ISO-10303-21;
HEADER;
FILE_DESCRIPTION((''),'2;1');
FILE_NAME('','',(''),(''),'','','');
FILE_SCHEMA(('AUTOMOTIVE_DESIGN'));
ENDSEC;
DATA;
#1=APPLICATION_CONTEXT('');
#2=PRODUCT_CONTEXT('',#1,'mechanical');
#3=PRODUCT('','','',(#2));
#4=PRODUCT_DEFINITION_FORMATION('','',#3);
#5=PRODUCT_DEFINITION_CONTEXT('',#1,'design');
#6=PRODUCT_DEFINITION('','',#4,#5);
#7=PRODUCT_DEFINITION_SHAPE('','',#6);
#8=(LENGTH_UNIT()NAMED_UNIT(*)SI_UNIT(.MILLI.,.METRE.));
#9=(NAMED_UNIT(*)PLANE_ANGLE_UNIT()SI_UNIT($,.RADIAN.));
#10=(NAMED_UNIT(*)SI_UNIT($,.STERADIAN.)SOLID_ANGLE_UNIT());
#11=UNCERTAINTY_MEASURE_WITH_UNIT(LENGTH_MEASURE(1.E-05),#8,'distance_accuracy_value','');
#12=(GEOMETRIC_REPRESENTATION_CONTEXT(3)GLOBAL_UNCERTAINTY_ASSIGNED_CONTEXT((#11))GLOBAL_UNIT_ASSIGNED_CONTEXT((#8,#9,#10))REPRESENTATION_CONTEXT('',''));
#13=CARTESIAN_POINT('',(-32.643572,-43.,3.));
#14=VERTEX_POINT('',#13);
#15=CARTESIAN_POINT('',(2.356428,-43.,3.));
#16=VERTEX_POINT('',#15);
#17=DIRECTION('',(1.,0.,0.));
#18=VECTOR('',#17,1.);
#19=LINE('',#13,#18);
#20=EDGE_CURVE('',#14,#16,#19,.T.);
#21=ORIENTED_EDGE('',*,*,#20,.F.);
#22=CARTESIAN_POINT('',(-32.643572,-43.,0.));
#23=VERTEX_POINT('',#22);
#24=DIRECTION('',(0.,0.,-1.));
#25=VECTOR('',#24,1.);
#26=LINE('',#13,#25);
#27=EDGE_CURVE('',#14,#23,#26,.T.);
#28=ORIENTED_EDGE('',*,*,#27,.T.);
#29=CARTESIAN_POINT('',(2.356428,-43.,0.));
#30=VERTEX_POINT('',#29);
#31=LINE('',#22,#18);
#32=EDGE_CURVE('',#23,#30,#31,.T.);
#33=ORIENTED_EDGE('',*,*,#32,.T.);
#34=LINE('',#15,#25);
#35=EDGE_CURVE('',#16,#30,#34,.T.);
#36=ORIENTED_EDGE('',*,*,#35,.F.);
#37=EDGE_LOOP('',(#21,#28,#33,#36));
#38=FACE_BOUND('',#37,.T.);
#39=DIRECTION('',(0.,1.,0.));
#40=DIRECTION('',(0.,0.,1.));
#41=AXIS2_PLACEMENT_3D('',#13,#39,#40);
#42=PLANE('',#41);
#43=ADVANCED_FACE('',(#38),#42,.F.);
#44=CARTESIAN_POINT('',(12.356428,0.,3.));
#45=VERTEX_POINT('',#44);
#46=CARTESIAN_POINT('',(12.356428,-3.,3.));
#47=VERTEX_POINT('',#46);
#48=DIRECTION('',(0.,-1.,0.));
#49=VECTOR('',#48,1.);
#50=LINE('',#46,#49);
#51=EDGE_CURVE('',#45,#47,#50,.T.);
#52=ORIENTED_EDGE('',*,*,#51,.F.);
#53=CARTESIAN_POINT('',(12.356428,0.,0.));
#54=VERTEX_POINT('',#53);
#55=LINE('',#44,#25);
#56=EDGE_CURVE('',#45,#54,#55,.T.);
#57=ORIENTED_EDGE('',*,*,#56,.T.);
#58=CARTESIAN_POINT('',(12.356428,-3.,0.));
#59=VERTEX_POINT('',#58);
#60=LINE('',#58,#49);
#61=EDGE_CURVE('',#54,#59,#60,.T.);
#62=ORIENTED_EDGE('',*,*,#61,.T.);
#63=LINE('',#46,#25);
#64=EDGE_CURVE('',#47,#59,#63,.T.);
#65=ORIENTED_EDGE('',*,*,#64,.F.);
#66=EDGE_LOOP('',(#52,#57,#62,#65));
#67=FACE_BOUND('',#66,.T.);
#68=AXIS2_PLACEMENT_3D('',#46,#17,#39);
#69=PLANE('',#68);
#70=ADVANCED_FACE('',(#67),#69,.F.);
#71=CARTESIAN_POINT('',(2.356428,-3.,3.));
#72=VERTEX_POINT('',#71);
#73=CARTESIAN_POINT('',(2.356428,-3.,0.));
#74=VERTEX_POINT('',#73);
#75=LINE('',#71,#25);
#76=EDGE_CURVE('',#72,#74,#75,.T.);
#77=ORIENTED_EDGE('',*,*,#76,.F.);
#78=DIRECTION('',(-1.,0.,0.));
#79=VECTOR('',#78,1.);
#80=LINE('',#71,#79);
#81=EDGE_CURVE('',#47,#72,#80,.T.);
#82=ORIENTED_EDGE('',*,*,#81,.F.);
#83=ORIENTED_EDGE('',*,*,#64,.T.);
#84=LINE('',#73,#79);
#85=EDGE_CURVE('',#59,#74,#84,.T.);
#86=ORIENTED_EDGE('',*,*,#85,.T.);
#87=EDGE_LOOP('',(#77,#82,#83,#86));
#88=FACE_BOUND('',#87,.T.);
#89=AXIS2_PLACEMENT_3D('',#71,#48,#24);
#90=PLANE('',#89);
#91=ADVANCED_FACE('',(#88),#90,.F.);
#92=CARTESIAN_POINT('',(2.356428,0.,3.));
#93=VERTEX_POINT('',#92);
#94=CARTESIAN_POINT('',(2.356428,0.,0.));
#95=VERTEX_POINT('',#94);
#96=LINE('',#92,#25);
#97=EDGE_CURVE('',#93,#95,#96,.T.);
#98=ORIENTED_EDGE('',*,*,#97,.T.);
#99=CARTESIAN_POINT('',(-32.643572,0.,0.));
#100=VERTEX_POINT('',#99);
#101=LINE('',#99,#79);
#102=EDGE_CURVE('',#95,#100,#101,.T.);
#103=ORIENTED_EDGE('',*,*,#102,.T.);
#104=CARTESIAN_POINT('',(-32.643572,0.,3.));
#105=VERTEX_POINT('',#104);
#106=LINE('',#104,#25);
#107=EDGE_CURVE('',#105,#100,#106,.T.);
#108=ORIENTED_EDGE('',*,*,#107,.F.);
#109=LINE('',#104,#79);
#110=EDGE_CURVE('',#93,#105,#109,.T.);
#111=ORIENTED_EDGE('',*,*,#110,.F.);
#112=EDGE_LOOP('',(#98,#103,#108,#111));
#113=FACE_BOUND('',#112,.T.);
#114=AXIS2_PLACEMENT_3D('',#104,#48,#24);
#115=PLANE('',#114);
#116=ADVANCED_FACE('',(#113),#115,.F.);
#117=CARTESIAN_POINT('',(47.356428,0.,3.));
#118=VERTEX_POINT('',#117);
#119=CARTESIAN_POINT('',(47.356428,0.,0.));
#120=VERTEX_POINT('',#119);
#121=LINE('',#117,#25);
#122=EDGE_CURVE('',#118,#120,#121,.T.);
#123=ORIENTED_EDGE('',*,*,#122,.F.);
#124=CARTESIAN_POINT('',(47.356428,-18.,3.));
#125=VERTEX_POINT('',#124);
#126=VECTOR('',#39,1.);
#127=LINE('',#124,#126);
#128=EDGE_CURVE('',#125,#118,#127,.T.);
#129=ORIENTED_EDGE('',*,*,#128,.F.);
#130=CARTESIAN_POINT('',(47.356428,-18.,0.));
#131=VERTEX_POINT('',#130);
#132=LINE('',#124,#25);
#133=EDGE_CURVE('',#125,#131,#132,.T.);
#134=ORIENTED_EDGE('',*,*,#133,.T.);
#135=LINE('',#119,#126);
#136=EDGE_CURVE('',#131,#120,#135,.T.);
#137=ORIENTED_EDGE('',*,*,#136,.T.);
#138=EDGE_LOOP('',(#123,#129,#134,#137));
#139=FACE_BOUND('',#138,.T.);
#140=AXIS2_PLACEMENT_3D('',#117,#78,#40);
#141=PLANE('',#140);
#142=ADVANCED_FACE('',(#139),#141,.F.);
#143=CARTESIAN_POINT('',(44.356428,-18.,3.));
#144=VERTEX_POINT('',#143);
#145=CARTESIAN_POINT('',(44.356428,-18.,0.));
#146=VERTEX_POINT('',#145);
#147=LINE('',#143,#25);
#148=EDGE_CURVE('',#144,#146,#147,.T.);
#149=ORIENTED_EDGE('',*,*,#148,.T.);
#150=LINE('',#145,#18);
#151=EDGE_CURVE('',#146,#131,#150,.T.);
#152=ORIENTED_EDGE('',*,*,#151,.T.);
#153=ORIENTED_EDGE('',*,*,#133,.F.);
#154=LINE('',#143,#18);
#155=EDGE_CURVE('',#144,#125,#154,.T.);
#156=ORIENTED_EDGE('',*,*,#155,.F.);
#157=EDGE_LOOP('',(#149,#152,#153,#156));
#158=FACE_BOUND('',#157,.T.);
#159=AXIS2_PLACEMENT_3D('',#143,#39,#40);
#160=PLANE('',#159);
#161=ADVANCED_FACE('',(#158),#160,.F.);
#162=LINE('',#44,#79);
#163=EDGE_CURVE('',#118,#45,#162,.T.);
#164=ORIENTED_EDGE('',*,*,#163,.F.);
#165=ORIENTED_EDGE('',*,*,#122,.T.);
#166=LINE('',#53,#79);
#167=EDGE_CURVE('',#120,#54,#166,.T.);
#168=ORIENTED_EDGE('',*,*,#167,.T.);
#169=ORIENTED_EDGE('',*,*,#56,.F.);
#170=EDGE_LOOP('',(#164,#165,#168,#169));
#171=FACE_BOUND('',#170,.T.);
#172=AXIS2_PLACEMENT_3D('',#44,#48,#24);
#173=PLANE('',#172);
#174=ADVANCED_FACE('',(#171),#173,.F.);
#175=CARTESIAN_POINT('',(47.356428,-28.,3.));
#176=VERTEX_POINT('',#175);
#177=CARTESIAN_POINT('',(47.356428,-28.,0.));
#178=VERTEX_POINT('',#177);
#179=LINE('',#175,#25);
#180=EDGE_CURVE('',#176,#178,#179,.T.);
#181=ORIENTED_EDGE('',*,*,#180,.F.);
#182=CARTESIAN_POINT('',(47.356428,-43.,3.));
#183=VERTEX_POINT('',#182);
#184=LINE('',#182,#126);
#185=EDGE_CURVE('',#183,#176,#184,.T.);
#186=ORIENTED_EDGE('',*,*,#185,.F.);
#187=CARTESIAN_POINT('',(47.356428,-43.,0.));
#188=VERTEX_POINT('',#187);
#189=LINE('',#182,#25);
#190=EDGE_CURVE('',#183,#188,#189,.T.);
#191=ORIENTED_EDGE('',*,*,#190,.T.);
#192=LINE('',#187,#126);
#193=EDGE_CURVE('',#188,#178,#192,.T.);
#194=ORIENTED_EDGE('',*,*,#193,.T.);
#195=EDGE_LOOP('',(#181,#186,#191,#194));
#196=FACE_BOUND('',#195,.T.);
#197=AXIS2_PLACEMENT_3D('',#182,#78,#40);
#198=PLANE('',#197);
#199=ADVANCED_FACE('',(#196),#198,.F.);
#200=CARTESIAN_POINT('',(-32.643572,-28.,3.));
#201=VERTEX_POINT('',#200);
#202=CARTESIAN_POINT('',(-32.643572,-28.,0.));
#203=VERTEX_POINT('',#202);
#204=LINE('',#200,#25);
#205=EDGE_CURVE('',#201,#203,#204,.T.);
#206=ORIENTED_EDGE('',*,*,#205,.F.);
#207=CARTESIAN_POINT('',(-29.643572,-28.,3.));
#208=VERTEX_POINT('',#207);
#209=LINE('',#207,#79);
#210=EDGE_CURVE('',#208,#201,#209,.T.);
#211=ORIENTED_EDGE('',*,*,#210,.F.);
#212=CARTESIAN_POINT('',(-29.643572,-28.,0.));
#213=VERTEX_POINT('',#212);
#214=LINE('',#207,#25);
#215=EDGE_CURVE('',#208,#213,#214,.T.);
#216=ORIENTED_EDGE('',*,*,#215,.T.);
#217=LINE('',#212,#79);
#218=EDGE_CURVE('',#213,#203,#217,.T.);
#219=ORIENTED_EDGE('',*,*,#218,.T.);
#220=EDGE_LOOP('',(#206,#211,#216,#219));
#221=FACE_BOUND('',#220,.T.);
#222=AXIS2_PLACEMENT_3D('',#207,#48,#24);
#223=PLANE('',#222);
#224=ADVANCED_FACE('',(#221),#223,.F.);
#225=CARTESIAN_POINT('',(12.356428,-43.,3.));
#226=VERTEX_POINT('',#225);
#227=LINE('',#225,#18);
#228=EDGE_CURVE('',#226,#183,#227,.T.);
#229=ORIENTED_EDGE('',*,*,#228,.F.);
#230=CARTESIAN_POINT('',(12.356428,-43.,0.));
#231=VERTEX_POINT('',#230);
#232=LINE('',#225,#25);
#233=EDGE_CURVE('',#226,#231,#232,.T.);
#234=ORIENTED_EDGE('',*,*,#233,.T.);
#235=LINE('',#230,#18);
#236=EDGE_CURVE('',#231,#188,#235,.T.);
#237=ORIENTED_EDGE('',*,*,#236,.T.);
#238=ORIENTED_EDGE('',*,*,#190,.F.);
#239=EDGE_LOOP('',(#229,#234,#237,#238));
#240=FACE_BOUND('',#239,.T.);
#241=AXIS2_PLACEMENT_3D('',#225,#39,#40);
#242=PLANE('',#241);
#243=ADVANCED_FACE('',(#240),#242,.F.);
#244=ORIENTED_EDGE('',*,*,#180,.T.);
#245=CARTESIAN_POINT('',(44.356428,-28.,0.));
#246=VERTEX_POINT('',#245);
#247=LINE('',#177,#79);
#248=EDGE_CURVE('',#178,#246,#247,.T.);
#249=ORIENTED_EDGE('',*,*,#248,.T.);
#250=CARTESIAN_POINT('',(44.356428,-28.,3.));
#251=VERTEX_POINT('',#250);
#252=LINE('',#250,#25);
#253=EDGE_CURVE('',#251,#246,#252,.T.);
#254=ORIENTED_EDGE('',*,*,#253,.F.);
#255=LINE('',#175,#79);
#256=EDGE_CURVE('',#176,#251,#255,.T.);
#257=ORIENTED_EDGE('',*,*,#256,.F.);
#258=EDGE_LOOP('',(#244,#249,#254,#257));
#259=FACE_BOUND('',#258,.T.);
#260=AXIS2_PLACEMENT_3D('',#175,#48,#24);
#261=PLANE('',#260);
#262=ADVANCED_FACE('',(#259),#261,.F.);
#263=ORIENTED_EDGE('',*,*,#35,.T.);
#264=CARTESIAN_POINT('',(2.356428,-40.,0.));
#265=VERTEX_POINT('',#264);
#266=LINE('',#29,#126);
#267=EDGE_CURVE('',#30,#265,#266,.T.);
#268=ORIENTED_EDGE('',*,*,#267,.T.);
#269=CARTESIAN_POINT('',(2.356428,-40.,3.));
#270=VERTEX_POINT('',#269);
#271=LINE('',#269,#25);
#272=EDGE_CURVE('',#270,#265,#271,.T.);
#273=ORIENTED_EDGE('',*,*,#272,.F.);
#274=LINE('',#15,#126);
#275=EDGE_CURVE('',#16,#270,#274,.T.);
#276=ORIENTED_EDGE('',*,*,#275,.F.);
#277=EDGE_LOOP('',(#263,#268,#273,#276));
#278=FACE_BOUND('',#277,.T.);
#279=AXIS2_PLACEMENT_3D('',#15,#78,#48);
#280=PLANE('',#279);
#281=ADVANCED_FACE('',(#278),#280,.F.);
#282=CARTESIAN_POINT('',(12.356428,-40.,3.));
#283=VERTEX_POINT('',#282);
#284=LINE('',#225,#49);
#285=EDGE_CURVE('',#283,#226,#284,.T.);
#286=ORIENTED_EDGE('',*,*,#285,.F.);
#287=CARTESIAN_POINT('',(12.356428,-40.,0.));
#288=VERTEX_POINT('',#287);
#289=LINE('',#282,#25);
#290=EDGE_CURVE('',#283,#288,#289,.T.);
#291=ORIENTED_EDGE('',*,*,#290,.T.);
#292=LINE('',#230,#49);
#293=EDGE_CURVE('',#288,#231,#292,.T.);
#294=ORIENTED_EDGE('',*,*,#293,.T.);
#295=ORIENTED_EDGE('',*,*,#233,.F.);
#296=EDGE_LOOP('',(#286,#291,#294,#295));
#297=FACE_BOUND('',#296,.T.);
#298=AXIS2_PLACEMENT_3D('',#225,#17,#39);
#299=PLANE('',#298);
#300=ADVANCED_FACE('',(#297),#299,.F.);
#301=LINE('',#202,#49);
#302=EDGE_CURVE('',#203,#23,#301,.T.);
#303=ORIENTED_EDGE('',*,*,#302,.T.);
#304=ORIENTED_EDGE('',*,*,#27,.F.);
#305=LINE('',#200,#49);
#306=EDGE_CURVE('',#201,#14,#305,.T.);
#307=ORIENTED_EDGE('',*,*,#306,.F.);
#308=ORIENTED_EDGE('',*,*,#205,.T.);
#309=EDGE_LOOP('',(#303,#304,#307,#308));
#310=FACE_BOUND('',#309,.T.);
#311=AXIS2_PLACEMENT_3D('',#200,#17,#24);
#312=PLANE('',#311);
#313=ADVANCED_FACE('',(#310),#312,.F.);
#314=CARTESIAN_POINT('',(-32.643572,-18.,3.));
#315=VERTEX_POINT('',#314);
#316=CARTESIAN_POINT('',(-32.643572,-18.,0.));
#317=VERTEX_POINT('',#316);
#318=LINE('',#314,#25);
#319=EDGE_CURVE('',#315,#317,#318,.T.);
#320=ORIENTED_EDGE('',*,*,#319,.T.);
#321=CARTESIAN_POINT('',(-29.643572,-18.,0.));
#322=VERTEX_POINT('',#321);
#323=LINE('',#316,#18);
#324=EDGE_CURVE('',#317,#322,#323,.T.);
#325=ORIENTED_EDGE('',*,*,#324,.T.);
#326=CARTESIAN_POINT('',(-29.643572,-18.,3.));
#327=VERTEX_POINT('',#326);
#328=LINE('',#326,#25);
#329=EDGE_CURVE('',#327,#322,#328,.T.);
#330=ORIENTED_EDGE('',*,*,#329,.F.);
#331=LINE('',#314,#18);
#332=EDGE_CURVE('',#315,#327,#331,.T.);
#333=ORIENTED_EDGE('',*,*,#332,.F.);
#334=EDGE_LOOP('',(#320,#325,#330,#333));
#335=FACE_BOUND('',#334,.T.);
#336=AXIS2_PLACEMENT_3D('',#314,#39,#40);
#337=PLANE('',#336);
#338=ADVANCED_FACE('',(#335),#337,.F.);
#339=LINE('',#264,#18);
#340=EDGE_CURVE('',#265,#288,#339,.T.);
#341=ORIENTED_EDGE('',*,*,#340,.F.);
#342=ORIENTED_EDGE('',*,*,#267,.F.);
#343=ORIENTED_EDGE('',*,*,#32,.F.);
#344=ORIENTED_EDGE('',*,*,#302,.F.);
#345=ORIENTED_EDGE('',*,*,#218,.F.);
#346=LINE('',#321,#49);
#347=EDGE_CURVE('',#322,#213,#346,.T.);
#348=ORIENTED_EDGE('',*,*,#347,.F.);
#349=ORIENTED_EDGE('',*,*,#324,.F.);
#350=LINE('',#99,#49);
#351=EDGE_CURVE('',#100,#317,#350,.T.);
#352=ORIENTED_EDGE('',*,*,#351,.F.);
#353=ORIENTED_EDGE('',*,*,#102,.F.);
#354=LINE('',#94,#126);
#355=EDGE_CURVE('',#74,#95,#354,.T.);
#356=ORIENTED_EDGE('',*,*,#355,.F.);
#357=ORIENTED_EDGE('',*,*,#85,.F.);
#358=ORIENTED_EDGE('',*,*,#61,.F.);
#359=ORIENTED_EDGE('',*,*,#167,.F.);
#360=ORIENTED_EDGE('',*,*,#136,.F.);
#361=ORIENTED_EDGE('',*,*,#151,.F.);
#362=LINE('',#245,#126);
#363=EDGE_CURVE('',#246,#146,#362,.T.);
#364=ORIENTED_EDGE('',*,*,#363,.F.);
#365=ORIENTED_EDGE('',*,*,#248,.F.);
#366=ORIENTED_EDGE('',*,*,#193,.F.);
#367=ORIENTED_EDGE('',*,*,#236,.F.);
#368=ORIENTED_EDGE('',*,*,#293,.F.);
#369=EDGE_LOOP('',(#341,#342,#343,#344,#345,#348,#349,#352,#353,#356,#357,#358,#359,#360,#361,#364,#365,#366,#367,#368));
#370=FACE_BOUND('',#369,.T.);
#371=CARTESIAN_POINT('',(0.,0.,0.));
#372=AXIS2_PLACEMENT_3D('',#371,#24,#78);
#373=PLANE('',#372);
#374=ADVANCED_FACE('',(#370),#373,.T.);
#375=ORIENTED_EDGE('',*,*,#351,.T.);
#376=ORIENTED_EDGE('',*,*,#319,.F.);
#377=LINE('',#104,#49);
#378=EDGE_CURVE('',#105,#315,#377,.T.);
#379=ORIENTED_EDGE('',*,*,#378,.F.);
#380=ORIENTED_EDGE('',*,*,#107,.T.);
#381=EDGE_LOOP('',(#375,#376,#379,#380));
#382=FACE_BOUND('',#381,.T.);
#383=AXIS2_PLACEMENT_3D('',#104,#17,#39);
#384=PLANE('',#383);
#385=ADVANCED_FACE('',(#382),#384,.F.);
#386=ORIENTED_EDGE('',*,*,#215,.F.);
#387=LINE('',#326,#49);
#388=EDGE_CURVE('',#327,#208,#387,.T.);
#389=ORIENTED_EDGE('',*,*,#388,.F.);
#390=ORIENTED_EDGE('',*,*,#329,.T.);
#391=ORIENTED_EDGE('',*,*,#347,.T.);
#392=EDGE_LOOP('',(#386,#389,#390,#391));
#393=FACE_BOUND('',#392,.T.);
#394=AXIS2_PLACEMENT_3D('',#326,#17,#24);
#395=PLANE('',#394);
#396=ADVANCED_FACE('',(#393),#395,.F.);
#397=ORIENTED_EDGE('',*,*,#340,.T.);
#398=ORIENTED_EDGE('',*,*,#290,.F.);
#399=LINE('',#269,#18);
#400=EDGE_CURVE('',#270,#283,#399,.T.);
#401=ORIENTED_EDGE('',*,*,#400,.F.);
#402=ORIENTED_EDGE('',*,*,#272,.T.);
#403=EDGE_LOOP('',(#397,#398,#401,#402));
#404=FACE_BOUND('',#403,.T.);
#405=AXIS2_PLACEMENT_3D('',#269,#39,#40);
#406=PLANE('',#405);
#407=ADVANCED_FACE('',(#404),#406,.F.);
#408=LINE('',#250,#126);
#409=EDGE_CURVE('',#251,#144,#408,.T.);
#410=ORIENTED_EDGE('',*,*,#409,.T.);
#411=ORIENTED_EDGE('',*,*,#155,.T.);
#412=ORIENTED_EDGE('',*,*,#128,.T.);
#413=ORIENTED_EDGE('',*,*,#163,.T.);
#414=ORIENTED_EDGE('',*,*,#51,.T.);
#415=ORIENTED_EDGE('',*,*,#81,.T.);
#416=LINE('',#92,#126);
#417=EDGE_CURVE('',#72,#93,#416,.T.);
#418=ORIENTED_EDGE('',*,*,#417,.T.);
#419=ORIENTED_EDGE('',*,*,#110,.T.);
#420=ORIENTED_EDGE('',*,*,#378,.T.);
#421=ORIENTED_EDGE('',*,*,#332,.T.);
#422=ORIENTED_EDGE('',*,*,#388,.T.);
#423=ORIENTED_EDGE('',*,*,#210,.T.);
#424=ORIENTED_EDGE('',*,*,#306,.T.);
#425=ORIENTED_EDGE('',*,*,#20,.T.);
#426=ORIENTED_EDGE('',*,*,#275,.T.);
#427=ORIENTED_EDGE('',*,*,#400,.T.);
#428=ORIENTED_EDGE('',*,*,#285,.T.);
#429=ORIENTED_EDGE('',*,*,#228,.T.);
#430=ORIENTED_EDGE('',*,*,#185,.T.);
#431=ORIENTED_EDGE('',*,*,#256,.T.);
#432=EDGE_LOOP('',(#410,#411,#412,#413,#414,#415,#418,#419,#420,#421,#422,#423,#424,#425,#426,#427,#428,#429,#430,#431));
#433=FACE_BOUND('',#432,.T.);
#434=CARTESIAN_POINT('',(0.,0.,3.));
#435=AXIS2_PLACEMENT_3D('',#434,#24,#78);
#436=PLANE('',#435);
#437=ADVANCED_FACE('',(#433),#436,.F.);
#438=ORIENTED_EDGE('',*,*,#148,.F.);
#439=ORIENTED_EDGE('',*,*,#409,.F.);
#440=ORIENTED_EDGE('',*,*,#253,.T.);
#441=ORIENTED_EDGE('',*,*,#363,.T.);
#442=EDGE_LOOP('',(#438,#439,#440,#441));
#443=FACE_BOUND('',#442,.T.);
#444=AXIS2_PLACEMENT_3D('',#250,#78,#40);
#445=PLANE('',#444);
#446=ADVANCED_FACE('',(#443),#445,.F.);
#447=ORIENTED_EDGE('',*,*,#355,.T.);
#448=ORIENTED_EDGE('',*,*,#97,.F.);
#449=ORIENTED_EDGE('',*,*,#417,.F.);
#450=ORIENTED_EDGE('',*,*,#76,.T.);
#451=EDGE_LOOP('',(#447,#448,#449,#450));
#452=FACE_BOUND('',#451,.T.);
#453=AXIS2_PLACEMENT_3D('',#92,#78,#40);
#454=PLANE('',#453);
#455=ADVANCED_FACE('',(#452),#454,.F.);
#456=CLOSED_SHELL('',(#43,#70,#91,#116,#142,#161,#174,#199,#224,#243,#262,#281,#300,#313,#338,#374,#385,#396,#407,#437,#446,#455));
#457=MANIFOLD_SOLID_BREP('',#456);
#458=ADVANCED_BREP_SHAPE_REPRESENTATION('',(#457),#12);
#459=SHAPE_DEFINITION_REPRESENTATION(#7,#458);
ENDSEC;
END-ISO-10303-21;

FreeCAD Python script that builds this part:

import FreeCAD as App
import Part
import Sketcher
from FreeCAD import Vector

doc = App.newDocument("Part")
body = doc.addObject("PartDesign::Body", "Body")

sketch1 = body.newObject("Sketcher::SketchObject", "Sketch")
sketch1.AttachmentSupport = (doc.getObject("XY_Plane"), [""])
sketch1.MapMode = "FlatFace"
sketch1.addGeometry([
    Part.LineSegment(Vector(-32.6, 0, 0), Vector(-32.6, -18, 0)),
    Part.LineSegment(Vector(-32.6, -18, 0), Vector(-29.6, -18, 0)),
    Part.LineSegment(Vector(-29.6, -18, 0), Vector(-29.6, -28, 0)),
    Part.LineSegment(Vector(-29.6, -28, 0), Vector(-32.6, -28, 0)),
    Part.LineSegment(Vector(-32.6, -28, 0), Vector(-32.6, -43, 0)),
    Part.LineSegment(Vector(-32.6, -43, 0), Vector(2.4, -43, 0)),
    Part.LineSegment(Vector(2.4, -43, 0), Vector(2.4, -40, 0)),
    Part.LineSegment(Vector(2.4, -40, 0), Vector(12.4, -40, 0)),
    Part.LineSegment(Vector(12.4, -40, 0), Vector(12.4, -43, 0)),
    Part.LineSegment(Vector(12.4, -43, 0), Vector(47.4, -43, 0)),
    Part.LineSegment(Vector(47.4, -43, 0), Vector(47.4, -28, 0)),
    Part.LineSegment(Vector(47.4, -28, 0), Vector(44.4, -28, 0)),
    Part.LineSegment(Vector(44.4, -28, 0), Vector(44.4, -18, 0)),
    Part.LineSegment(Vector(44.4, -18, 0), Vector(47.4, -18, 0)),
    Part.LineSegment(Vector(47.4, -18, 0), Vector(47.4, 0, 0)),
    Part.LineSegment(Vector(47.4, 0, 0), Vector(12.4, 0, 0)),
    Part.LineSegment(Vector(12.4, 0, 0), Vector(12.4, -3, 0)),
    Part.LineSegment(Vector(12.4, -3, 0), Vector(2.4, -3, 0)),
    Part.LineSegment(Vector(2.4, -3, 0), Vector(2.4, 0, 0)),
    Part.LineSegment(Vector(2.4, 0, 0), Vector(-32.6, 0, 0)),
], False)
sketch1.addConstraint([
    Sketcher.Constraint("Coincident", 0, 2, 1, 1),
    Sketcher.Constraint("Coincident", 1, 2, 2, 1),
    Sketcher.Constraint("Coincident", 2, 2, 3, 1),
    Sketcher.Constraint("Coincident", 3, 2, 4, 1),
    Sketcher.Constraint("Coincident", 4, 2, 5, 1),
    Sketcher.Constraint("Coincident", 5, 2, 6, 1),
    Sketcher.Constraint("Coincident", 6, 2, 7, 1),
    Sketcher.Constraint("Coincident", 7, 2, 8, 1),
    Sketcher.Constraint("Coincident", 8, 2, 9, 1),
    Sketcher.Constraint("Coincident", 9, 2, 10, 1),
    Sketcher.Constraint("Coincident", 10, 2, 11, 1),
    Sketcher.Constraint("Coincident", 11, 2, 12, 1),
    Sketcher.Constraint("Coincident", 12, 2, 13, 1),
    Sketcher.Constraint("Coincident", 13, 2, 14, 1),
    Sketcher.Constraint("Coincident", 14, 2, 15, 1),
    Sketcher.Constraint("Coincident", 15, 2, 16, 1),
    Sketcher.Constraint("Coincident", 16, 2, 17, 1),
    Sketcher.Constraint("Coincident", 17, 2, 18, 1),
    Sketcher.Constraint("Coincident", 18, 2, 19, 1),
    Sketcher.Constraint("Coincident", 19, 2, 0, 1),
    Sketcher.Constraint("Vertical", 0),
    Sketcher.Constraint("Horizontal", 1),
    Sketcher.Constraint("Vertical", 2),
    Sketcher.Constraint("Horizontal", 3),
    Sketcher.Constraint("Vertical", 4),
    Sketcher.Constraint("Horizontal", 5),
    Sketcher.Constraint("Vertical", 6),
    Sketcher.Constraint("Horizontal", 7),
    Sketcher.Constraint("Vertical", 8),
    Sketcher.Constraint("Horizontal", 9),
    Sketcher.Constraint("Vertical", 10),
    Sketcher.Constraint("Horizontal", 11),
    Sketcher.Constraint("Vertical", 12),
    Sketcher.Constraint("Horizontal", 13),
    Sketcher.Constraint("Vertical", 14),
    Sketcher.Constraint("Horizontal", 15),
    Sketcher.Constraint("Vertical", 16),
    Sketcher.Constraint("Horizontal", 17),
    Sketcher.Constraint("Vertical", 18),
    Sketcher.Constraint("Horizontal", 19),
    Sketcher.Constraint("PointOnObject", 14, 2, -1),
    Sketcher.Constraint("PointOnObject", 18, 2, -1),
    Sketcher.Constraint("Horizontal", 5, 2, 8, 2),
    Sketcher.Constraint("Horizontal", 3, 2, 10, 2),
    Sketcher.Constraint("Horizontal", 1, 2, 12, 2),
    Sketcher.Constraint("Vertical", 0, 2, 3, 2),
    Sketcher.Constraint("Vertical", 10, 2, 13, 2),
    Sketcher.Constraint("Vertical", 8, 2, 15, 2),
    Sketcher.Constraint("Vertical", 6, 2, 17, 2),
    Sketcher.Constraint("Equal", 5, 9),
    Sketcher.Constraint("Equal", 3, 11),
    Sketcher.Constraint("Equal", 17, 2),
    Sketcher.Constraint("Equal", 13, 6),
    Sketcher.Constraint("Equal", 8, 16),
    Sketcher.Constraint("DistanceX", 1, 1, 1, 2, 3.0),
    Sketcher.Constraint("DistanceX", 5, 1, 5, 2, 35.0),
    Sketcher.Constraint("DistanceX", 7, 1, 7, 2, 10.0),
    Sketcher.Constraint("DistanceY", 0, 2, 0, 1, 18.0),
    Sketcher.Constraint("DistanceY", 4, 2, 4, 1, 15.0),
    Sketcher.Constraint("DistanceX", 0, 2, -1, 1, 32.643572),
])
pad1 = body.newObject("PartDesign::Pad", "Pad")
pad1.Profile = sketch1
pad1.Length = 3

doc.recompute()
